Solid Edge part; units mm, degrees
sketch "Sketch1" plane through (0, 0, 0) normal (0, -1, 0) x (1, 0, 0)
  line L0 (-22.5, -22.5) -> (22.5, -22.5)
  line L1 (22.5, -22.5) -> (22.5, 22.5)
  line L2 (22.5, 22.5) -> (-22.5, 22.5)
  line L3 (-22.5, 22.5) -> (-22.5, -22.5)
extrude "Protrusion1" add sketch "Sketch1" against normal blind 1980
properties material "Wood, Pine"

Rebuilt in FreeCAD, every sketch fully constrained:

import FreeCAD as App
import Part
import Sketcher

V = App.Vector
Q = App.Units.Quantity


def add_polygon(sketch, points):
    """Adds a closed chain of lines whose ends are joined by coincident constraints."""
    first, n = sketch.GeometryCount, len(points)
    for a, b in zip(points, points[1:] + points[:1]):
        sketch.addGeometry(Part.LineSegment(App.Vector(*a, 0), App.Vector(*b, 0)), False)
    for i in range(n):
        sketch.addConstraint(Sketcher.Constraint("Coincident", first + i, 2, first + (i + 1) % n, 1))

doc = App.newDocument("Part")
body = doc.addObject("PartDesign::Body", "Body")

# Sketch on XZ plane
sketch1 = body.newObject("Sketcher::SketchObject", "Sketch")
sketch1.AttachmentSupport = (doc.getObject("XZ_Plane"), [""])
sketch1.MapMode = "FlatFace"
add_polygon(sketch1, [(-22.5, 22.5), (-22.5, -22.5), (22.5, -22.5), (22.5, 22.5)])  # lines 0-3
sketch1.addConstraint(Sketcher.Constraint("Vertical", 0))
sketch1.addConstraint(Sketcher.Constraint("Horizontal", 1))
sketch1.addConstraint(Sketcher.Constraint("Vertical", 2))
sketch1.addConstraint(Sketcher.Constraint("Horizontal", 3))
sketch1.addConstraint(Sketcher.Constraint("Symmetric", 0, 2, 2, 2, -1, 1))
sketch1.addConstraint(Sketcher.Constraint("Equal", 3, 0))
sketch1.addConstraint(Sketcher.Constraint("DistanceX", 1, 1, 1, 2, Q("45 mm")))
pad1 = body.newObject("PartDesign::Pad", "Pad")
pad1.Profile = sketch1
pad1.Length = 1980
pad1.Reversed = True

doc.recompute()
